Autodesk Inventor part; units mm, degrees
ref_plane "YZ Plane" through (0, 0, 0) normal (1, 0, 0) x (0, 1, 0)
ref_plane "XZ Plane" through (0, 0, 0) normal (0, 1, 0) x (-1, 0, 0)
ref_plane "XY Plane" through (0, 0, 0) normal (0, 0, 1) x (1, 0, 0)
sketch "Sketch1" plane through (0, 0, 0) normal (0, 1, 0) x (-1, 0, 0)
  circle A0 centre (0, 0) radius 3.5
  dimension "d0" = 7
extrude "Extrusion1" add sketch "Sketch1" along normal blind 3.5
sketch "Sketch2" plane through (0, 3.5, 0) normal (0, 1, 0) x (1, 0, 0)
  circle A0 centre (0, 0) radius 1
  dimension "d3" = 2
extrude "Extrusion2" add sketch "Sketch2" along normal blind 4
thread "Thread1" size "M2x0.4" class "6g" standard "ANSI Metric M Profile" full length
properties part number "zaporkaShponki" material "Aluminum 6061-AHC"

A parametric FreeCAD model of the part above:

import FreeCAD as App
import Part
import Sketcher
Q = App.Units.Quantity

doc = App.newDocument("Part")
params = doc.addObject("Spreadsheet::Sheet", "Params")
for row, (alias, value) in enumerate([
    ("sketch1_diameter", "7 mm"),
    ("pad1_length", "3.5 mm"),
    ("sketch2_diameter", "2 mm"),
    ("pad2_length", "4 mm"),
], start=1):
    params.set(f"A{row}", alias)
    params.set(f"B{row}", "=" + value)
    params.setAlias(f"B{row}", alias)

body = doc.addObject("PartDesign::Body", "Body")

sketch1 = doc.addObject("Sketcher::SketchObject", "Sketch")
body.addObject(sketch1)
sketch1.AttachmentSupport = (doc.XZ_Plane, [""])
sketch1.MapMode = "FlatFace"
sketch1.addGeometry(Part.Circle(App.Vector(0, 0, 0), App.Vector(0, 0, 1), 3.5), False)
sketch1.addConstraint([
    Sketcher.Constraint("Coincident", 0, 3, -1, 1),
    Sketcher.Constraint("Diameter", 0, Q("7 mm")),
])
sketch1.setExpression("Constraints[1]", "Params.sketch1_diameter")
pad1 = doc.addObject("PartDesign::Pad", "Pad")
body.addObject(pad1)
pad1.Profile = sketch1
pad1.setExpression("Length", "Params.pad1_length")
pad1.Reversed = True

sketch2 = doc.addObject("Sketcher::SketchObject", "Sketch001")
body.addObject(sketch2)
sketch2.AttachmentSupport = (doc.XZ_Plane, [""])
sketch2.MapMode = "FlatFace"
sketch2.AttachmentOffset = App.Placement(App.Vector(0, 0, -3.5), App.Rotation())
sketch2.addGeometry(Part.Circle(App.Vector(0, 0, 0), App.Vector(0, 0, 1), 1), False)
sketch2.addConstraint([
    Sketcher.Constraint("Coincident", 0, 3, -1, 1),
    Sketcher.Constraint("Diameter", 0, Q("2 mm")),
])
sketch2.setExpression("Constraints[1]", "Params.sketch2_diameter")
pad2 = doc.addObject("PartDesign::Pad", "Pad001")
body.addObject(pad2)
pad2.Profile = sketch2
pad2.setExpression("Length", "Params.pad2_length")
pad2.Reversed = True

doc.recompute()
